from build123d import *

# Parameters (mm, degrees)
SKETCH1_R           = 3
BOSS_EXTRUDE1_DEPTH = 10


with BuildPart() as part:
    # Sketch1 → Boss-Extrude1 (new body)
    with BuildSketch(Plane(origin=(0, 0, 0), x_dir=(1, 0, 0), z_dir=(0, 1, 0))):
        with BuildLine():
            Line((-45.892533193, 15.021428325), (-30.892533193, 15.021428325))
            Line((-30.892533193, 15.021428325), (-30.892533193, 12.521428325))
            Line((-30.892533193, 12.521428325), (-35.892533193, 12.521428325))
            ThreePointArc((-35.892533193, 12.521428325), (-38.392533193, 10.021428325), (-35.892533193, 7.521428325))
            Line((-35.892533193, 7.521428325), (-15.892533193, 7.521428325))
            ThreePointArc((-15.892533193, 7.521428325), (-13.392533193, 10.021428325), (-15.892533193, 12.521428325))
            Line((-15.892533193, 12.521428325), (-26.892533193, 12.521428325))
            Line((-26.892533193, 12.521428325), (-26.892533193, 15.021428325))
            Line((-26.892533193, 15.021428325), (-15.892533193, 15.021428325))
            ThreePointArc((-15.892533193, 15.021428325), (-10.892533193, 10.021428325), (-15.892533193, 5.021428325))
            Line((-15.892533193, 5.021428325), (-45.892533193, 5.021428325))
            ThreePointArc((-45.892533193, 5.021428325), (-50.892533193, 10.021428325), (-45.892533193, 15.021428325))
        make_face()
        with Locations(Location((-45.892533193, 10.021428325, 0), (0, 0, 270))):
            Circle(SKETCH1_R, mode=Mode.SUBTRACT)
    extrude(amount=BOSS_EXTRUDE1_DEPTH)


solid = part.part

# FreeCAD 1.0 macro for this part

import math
import FreeCAD as App
import Part
import Sketcher
Q = App.Units.Quantity

doc = App.newDocument("Part")
body = doc.addObject("PartDesign::Body", "Body")

sketch1 = doc.addObject("Sketcher::SketchObject", "Sketch")
body.addObject(sketch1)
sketch1.AttachmentSupport = (doc.XZ_Plane, [""])
sketch1.MapMode = "FlatFace"
sketch1.addGeometry(Part.LineSegment(App.Vector(-30.892533, -15.021428, 0), App.Vector(-45.892533, -15.021428, 0)), False)
sketch1.addGeometry(Part.ArcOfCircle(Part.Circle(App.Vector(-45.892533, -10.021428, 0), App.Vector(0, 0, 1), 5), math.radians(90), math.radians(270)), False)
sketch1.addGeometry(Part.LineSegment(App.Vector(-45.892533, -5.021428, 0), App.Vector(-15.892533, -5.021428, 0)), False)
sketch1.addGeometry(Part.ArcOfCircle(Part.Circle(App.Vector(-15.892533, -10.021428, 0), App.Vector(0, 0, 1), 5), math.radians(-90), math.radians(90)), False)
sketch1.addGeometry(Part.LineSegment(App.Vector(-15.892533, -15.021428, 0), App.Vector(-26.892533, -15.021428, 0)), False)
sketch1.addGeometry(Part.LineSegment(App.Vector(-26.892533, -15.021428, 0), App.Vector(-26.892533, -12.521428, 0)), False)
sketch1.addGeometry(Part.LineSegment(App.Vector(-26.892533, -12.521428, 0), App.Vector(-15.892533, -12.521428, 0)), False)
sketch1.addGeometry(Part.ArcOfCircle(Part.Circle(App.Vector(-15.892533, -10.021428, 0), App.Vector(0, 0, 1), 2.5), math.radians(-90), math.radians(90)), False)
sketch1.addGeometry(Part.LineSegment(App.Vector(-15.892533, -7.521428, 0), App.Vector(-35.892533, -7.521428, 0)), False)
sketch1.addGeometry(Part.ArcOfCircle(Part.Circle(App.Vector(-35.892533, -10.021428, 0), App.Vector(0, 0, 1), 2.5), math.radians(90), math.radians(270)), False)
sketch1.addGeometry(Part.LineSegment(App.Vector(-35.892533, -12.521428, 0), App.Vector(-30.892533, -12.521428, 0)), False)
sketch1.addGeometry(Part.LineSegment(App.Vector(-30.892533, -12.521428, 0), App.Vector(-30.892533, -15.021428, 0)), False)
sketch1.addGeometry(Part.Circle(App.Vector(-45.892533, -10.021428, 0), App.Vector(0, 0, 1), 3), False)
sketch1.addConstraint(Sketcher.Constraint("Tangent", 0, 2, 1, 2))
sketch1.addConstraint(Sketcher.Constraint("Tangent", 1, 1, 2, 1))
sketch1.addConstraint(Sketcher.Constraint("Tangent", 2, 2, 3, 2))
sketch1.addConstraint(Sketcher.Constraint("Tangent", 3, 1, 4, 1))
sketch1.addConstraint(Sketcher.Constraint("Coincident", 4, 2, 5, 1))
sketch1.addConstraint(Sketcher.Constraint("Coincident", 5, 2, 6, 1))
sketch1.addConstraint(Sketcher.Constraint("Tangent", 6, 2, 7, 1))
sketch1.addConstraint(Sketcher.Constraint("Tangent", 7, 2, 8, 1))
sketch1.addConstraint(Sketcher.Constraint("Tangent", 8, 2, 9, 1))
sketch1.addConstraint(Sketcher.Constraint("Tangent", 9, 2, 10, 1))
sketch1.addConstraint(Sketcher.Constraint("Coincident", 10, 2, 11, 1))
sketch1.addConstraint(Sketcher.Constraint("Coincident", 11, 2, 0, 1))
sketch1.addConstraint(Sketcher.Constraint("Horizontal", 0))
sketch1.addConstraint(Sketcher.Constraint("Horizontal", 2))
sketch1.addConstraint(Sketcher.Constraint("Horizontal", 4))
sketch1.addConstraint(Sketcher.Constraint("Vertical", 5))
sketch1.addConstraint(Sketcher.Constraint("Horizontal", 6))
sketch1.addConstraint(Sketcher.Constraint("Horizontal", 8))
sketch1.addConstraint(Sketcher.Constraint("Horizontal", 10))
sketch1.addConstraint(Sketcher.Constraint("Vertical", 11))
sketch1.addConstraint(Sketcher.Constraint("Coincident", 7, 3, 3, 3))
sketch1.addConstraint(Sketcher.Constraint("Coincident", 12, 3, 1, 3))
sketch1.addConstraint(Sketcher.Constraint("Equal", 1, 3))
sketch1.addConstraint(Sketcher.Constraint("Equal", 7, 9))
sketch1.addConstraint(Sketcher.Constraint("Diameter", 12, Q("6 mm")))
sketch1.addConstraint(Sketcher.Constraint("Radius", 1, Q("5 mm")))
sketch1.addConstraint(Sketcher.Constraint("Radius", 7, Q("2.5 mm")))
sketch1.addConstraint(Sketcher.Constraint("DistanceX", 0, 2, 0, 1, Q("15 mm")))
sketch1.addConstraint(Sketcher.Constraint("DistanceX", 2, 1, 2, 2, Q("30 mm")))
sketch1.addConstraint(Sketcher.Constraint("DistanceX", 4, 2, 4, 1, Q("11 mm")))
sketch1.addConstraint(Sketcher.Constraint("DistanceX", 8, 2, 8, 1, Q("20 mm")))
sketch1.addConstraint(Sketcher.Constraint("DistanceY", 1, 3, -1, 1, Q("10.021428 mm")))
sketch1.addConstraint(Sketcher.Constraint("DistanceX", 1, 3, -1, 1, Q("45.892533 mm")))
pad1 = doc.addObject("PartDesign::Pad", "Pad")
body.addObject(pad1)
pad1.Profile = sketch1
pad1.Length = 10
pad1.Reversed = True

doc.recompute()
